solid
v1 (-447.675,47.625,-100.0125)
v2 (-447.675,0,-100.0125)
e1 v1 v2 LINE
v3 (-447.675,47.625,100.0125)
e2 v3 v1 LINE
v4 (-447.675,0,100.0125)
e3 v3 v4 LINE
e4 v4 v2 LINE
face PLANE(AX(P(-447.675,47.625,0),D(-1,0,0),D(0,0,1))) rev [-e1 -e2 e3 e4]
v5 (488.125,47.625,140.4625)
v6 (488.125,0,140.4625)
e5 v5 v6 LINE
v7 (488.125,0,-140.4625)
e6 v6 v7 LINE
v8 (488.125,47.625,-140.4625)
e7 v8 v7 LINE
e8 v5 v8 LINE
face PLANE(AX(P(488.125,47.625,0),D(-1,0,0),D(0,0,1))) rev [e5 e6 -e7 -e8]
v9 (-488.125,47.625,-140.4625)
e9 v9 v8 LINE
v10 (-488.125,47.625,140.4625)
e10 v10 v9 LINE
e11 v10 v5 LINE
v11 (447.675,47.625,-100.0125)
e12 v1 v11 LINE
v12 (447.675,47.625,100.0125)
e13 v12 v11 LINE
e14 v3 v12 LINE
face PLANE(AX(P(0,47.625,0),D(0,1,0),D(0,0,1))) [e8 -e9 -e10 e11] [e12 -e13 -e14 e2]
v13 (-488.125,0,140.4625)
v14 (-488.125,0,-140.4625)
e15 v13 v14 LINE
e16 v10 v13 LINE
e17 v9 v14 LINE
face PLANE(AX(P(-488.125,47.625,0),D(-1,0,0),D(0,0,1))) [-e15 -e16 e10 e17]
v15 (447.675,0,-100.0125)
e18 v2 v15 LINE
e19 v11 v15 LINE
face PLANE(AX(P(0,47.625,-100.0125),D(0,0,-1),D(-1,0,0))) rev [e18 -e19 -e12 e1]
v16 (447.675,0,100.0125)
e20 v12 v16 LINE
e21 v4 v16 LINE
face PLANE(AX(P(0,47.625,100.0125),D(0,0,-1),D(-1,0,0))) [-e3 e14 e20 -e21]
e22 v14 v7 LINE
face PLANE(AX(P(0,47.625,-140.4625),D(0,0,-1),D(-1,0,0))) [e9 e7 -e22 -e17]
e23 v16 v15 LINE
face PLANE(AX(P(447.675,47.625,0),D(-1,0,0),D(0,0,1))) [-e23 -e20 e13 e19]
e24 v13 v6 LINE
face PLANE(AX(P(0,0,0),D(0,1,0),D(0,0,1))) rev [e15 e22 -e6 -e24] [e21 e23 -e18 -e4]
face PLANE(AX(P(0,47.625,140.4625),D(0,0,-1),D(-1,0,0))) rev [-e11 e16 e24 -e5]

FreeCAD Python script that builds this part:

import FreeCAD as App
import Part
import Sketcher

V = App.Vector
Q = App.Units.Quantity


def add_polygon(sketch, points):
    """Adds a closed chain of lines whose ends are joined by coincident constraints."""
    first, n = sketch.GeometryCount, len(points)
    for a, b in zip(points, points[1:] + points[:1]):
        sketch.addGeometry(Part.LineSegment(App.Vector(*a, 0), App.Vector(*b, 0)), False)
    for i in range(n):
        sketch.addConstraint(Sketcher.Constraint("Coincident", first + i, 2, first + (i + 1) % n, 1))

doc = App.newDocument("Part")
params = doc.addObject("Spreadsheet::Sheet", "Params")
for row, (alias, value) in enumerate([
    ("sketch1_width", "35.25 in"),
    ("sketch1_height", "7.875 in"),
    ("pad1_length", "1.875 in"),
], start=1):
    params.set(f"A{row}", alias)
    params.set(f"B{row}", "=" + value)
    params.setAlias(f"B{row}", alias)

body = doc.addObject("PartDesign::Body", "Body")

sketch1 = doc.addObject("Sketcher::SketchObject", "Sketch")
body.addObject(sketch1)
sketch1.AttachmentSupport = (doc.XZ_Plane, [""])
sketch1.MapMode = "FlatFace"
add_polygon(sketch1, [(-488, -140), (-488, 140), (488, 140), (488, -140)])
add_polygon(sketch1, [(448, 100), (-448, 100), (-448, -100), (448, -100)])
sketch1.addConstraint(Sketcher.Constraint("Vertical", 0))
sketch1.addConstraint(Sketcher.Constraint("Horizontal", 1))
sketch1.addConstraint(Sketcher.Constraint("Vertical", 2))
sketch1.addConstraint(Sketcher.Constraint("Horizontal", 3))
sketch1.addConstraint(Sketcher.Constraint("Horizontal", 4))
sketch1.addConstraint(Sketcher.Constraint("Vertical", 5))
sketch1.addConstraint(Sketcher.Constraint("Horizontal", 6))
sketch1.addConstraint(Sketcher.Constraint("Vertical", 7))
sketch1.addConstraint(Sketcher.Constraint("Symmetric", 0, 2, 2, 2, -1, 1))
sketch1.addConstraint(Sketcher.Constraint("Symmetric", 4, 2, 6, 2, -1, 1))
sketch1.addConstraint(Sketcher.Constraint("DistanceX", 4, 2, 4, 1, Q("35.25 in")))
sketch1.addConstraint(Sketcher.Constraint("DistanceY", 5, 2, 5, 1, Q("7.875 in")))
sketch1.addConstraint(Sketcher.Constraint("DistanceX", 1, 1, 1, 2, 976.25))
sketch1.addConstraint(Sketcher.Constraint("DistanceY", 0, 1, 0, 2, 280.925))
sketch1.setExpression("Constraints[18]", "Params.sketch1_width")
sketch1.setExpression("Constraints[19]", "Params.sketch1_height")
pad1 = doc.addObject("PartDesign::Pad", "Pad")
body.addObject(pad1)
pad1.Profile = sketch1
pad1.setExpression("Length", "Params.pad1_length")
pad1.Reversed = True

doc.recompute()
